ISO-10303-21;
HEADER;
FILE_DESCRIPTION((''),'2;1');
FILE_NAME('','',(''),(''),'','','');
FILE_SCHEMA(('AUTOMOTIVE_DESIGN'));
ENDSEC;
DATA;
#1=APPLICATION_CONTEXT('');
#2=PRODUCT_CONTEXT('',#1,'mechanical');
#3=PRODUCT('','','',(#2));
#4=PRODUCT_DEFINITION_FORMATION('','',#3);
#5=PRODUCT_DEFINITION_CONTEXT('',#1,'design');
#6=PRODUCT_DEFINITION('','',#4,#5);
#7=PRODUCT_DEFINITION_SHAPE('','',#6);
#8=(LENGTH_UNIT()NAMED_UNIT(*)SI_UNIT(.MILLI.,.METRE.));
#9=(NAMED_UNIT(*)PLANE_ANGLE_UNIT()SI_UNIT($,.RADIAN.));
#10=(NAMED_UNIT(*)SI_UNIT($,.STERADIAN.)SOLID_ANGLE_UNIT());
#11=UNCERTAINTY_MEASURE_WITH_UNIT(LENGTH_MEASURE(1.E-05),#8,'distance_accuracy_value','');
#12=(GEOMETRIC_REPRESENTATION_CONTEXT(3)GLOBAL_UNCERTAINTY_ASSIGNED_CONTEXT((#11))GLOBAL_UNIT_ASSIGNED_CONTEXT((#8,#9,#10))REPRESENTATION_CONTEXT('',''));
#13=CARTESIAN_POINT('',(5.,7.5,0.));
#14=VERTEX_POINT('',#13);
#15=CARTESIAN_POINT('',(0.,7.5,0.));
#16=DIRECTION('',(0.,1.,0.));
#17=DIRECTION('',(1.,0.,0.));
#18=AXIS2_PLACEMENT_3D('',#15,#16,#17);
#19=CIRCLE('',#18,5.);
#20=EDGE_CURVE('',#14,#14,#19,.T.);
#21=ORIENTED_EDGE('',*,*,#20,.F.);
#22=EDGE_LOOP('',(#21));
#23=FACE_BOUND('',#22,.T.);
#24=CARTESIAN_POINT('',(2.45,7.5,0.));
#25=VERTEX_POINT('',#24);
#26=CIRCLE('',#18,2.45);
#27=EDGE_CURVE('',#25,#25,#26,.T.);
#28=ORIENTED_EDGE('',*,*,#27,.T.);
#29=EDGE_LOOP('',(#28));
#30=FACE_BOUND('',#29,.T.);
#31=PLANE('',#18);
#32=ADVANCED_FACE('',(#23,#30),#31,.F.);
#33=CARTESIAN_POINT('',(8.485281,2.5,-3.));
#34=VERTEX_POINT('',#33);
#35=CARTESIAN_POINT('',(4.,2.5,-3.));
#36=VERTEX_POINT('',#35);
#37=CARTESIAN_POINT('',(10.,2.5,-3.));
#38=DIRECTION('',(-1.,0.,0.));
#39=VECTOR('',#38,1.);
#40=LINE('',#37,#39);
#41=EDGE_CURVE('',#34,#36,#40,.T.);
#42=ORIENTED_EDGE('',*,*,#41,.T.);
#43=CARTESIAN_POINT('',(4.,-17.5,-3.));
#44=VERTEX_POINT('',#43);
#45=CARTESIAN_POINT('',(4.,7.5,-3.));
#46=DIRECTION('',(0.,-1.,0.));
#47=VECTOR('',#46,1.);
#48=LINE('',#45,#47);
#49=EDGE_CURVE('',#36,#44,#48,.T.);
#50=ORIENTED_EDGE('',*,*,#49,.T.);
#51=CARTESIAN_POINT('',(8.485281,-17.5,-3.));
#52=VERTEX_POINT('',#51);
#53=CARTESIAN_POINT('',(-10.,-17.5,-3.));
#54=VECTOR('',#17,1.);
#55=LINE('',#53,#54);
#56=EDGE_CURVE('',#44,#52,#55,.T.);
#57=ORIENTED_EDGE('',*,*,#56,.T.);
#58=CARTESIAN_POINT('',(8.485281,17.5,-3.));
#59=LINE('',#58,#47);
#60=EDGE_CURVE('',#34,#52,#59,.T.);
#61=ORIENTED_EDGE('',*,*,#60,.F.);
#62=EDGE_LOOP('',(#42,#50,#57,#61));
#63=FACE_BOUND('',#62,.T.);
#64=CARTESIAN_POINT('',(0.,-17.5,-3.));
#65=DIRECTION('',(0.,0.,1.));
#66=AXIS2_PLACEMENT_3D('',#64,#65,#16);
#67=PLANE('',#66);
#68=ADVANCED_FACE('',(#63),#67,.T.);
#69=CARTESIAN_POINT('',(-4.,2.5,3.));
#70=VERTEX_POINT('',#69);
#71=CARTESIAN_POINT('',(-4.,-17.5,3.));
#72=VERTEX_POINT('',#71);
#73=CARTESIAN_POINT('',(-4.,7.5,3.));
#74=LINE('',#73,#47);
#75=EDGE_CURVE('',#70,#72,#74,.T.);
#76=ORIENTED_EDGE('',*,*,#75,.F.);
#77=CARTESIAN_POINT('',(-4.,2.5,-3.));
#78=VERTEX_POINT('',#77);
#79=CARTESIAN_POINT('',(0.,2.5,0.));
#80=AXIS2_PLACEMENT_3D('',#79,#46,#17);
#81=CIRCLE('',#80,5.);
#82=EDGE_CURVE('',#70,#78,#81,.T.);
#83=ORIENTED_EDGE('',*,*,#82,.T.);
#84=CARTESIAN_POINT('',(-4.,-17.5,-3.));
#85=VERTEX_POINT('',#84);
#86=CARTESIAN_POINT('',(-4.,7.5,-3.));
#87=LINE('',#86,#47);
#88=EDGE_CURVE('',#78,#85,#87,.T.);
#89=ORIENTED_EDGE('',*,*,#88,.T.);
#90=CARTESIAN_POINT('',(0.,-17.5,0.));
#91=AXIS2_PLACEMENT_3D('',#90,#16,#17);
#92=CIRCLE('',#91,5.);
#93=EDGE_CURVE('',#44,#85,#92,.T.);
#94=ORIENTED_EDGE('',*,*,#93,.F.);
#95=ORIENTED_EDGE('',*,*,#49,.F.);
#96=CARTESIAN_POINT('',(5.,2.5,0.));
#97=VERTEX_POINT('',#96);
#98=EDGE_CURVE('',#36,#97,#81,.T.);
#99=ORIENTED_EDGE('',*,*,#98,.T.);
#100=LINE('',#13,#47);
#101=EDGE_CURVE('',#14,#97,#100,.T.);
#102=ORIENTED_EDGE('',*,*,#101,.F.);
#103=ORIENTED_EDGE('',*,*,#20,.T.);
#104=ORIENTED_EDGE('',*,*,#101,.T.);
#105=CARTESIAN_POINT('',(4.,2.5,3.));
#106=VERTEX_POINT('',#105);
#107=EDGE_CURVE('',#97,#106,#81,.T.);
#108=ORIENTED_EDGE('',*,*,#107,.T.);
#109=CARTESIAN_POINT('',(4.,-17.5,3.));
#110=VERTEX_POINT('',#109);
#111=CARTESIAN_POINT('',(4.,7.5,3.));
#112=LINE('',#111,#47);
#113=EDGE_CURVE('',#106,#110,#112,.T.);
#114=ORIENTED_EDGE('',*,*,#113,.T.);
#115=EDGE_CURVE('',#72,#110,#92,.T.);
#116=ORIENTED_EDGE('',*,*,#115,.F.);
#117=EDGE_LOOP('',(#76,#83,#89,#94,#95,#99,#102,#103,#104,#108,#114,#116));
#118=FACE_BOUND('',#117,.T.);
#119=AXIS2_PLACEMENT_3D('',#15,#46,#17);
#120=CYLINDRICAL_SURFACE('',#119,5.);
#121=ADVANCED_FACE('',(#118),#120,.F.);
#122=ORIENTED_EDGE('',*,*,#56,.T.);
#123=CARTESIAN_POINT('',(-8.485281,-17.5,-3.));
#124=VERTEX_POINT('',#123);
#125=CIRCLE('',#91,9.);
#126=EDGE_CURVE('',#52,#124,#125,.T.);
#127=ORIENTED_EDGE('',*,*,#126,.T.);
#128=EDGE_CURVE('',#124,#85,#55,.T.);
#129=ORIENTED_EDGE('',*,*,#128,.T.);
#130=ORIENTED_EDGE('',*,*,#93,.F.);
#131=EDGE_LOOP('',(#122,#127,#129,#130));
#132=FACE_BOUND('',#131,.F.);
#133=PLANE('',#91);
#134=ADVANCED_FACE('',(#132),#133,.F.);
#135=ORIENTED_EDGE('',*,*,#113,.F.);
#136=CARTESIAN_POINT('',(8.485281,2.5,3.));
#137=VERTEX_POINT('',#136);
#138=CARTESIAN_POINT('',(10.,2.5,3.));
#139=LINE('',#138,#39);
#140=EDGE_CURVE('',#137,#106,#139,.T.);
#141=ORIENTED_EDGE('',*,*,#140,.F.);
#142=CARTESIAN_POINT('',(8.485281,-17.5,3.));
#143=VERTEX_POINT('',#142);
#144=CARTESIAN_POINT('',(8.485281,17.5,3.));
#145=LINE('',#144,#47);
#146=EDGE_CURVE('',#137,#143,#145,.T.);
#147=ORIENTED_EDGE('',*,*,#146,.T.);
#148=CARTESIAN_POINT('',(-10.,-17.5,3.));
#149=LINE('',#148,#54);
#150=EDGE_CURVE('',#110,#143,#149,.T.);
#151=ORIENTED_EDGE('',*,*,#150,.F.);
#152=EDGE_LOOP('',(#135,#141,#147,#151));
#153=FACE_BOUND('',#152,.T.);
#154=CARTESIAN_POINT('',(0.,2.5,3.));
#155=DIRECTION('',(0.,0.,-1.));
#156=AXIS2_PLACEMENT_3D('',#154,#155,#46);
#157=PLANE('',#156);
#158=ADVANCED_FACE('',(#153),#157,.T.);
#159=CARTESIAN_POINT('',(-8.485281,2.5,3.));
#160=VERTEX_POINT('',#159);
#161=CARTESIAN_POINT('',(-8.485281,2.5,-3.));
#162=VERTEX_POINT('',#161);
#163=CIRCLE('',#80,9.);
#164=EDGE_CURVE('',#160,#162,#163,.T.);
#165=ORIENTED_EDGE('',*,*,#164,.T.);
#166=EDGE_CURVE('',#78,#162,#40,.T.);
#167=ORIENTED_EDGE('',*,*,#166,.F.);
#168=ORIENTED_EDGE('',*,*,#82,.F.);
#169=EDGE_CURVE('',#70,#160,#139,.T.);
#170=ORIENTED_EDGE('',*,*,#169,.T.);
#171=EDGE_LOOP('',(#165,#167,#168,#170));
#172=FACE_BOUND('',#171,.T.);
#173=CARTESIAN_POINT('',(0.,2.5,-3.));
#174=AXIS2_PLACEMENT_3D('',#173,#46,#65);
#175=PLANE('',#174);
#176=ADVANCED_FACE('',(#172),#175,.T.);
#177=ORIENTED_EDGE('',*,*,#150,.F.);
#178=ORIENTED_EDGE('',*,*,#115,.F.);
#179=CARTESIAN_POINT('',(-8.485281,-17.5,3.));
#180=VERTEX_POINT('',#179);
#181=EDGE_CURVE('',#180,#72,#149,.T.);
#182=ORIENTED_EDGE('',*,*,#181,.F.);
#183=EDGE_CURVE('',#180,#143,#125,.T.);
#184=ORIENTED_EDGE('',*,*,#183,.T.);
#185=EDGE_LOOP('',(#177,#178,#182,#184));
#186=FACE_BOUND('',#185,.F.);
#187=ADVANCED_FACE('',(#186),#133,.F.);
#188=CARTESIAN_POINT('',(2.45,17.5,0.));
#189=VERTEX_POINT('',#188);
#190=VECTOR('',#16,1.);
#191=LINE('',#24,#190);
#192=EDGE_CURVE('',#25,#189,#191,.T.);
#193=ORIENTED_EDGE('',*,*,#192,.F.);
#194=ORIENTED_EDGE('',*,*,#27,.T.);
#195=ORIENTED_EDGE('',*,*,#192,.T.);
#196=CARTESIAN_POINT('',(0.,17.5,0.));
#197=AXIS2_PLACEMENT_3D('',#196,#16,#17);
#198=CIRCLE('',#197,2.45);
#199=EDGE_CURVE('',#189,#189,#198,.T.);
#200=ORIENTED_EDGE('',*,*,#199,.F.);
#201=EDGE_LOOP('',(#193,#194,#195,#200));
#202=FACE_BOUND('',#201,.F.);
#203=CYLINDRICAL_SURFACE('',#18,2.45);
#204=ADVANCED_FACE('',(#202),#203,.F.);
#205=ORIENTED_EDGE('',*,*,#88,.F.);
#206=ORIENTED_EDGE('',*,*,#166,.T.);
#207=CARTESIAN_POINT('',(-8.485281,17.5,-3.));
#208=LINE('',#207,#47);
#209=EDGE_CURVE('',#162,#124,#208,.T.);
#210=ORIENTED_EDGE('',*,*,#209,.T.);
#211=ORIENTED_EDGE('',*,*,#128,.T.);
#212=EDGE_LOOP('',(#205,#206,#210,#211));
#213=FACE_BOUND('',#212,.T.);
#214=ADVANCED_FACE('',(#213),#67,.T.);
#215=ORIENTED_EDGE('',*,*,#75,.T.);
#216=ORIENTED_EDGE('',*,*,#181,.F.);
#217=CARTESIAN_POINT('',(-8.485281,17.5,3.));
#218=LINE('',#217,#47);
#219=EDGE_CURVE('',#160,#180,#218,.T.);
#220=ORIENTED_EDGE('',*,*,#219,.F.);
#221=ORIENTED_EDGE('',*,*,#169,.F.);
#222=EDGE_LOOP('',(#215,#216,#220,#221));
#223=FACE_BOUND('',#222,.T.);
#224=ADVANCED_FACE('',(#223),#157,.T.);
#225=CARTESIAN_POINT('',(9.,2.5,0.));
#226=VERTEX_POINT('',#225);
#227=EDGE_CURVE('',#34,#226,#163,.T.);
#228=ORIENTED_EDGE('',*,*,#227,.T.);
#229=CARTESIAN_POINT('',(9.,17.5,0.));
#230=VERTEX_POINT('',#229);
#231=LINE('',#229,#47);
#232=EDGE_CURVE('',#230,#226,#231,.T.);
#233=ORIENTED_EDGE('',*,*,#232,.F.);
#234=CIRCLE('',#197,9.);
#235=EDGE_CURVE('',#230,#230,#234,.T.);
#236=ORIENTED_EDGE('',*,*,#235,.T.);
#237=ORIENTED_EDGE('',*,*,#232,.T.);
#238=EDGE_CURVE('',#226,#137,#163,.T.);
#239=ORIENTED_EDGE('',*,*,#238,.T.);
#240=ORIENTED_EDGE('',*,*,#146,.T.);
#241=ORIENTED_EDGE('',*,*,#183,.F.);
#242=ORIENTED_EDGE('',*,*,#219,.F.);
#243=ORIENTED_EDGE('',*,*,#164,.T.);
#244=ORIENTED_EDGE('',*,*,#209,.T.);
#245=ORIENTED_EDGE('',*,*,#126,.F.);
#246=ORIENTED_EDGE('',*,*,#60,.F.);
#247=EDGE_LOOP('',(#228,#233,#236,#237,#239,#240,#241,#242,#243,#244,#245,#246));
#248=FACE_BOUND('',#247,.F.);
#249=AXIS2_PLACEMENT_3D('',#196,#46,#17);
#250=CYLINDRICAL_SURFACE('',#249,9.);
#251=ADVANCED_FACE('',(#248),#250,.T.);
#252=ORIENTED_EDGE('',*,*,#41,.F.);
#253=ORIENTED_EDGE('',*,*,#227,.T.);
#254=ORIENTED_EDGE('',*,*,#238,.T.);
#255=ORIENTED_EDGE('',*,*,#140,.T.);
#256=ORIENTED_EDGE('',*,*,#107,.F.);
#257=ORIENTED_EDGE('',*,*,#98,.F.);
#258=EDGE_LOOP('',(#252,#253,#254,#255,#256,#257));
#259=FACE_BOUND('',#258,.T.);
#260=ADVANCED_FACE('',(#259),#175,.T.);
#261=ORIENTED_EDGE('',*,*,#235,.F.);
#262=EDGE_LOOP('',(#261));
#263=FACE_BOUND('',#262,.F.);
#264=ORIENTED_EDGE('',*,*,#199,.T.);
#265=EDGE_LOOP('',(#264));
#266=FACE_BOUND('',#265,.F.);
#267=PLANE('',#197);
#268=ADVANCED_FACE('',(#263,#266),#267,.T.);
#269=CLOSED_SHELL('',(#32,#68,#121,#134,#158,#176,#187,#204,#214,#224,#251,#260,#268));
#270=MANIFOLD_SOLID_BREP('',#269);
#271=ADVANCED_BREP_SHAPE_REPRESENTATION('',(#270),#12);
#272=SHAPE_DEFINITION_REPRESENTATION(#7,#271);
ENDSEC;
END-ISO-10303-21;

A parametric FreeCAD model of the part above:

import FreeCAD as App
import Part
import Sketcher
Q = App.Units.Quantity


def add_polygon(sketch, points):
    """Adds a closed chain of lines whose ends are joined by coincident constraints."""
    first, n = sketch.GeometryCount, len(points)
    for a, b in zip(points, points[1:] + points[:1]):
        sketch.addGeometry(Part.LineSegment(App.Vector(*a, 0), App.Vector(*b, 0)), False)
    for i in range(n):
        sketch.addConstraint(Sketcher.Constraint("Coincident", first + i, 2, first + (i + 1) % n, 1))

doc = App.newDocument("Part")
params = doc.addObject("Spreadsheet::Sheet", "Params")
for row, (alias, value) in enumerate([
    ("sketch1_height", "10 mm"),
    ("sketch1_height2", "35 mm"),
    ("revolution_angle", "360 deg"),
    ("sketch2_width", "20 mm"),
    ("sketch2_height", "6 mm"),
], start=1):
    params.set(f"A{row}", alias)
    params.set(f"B{row}", "=" + value)
    params.setAlias(f"B{row}", alias)

body = doc.addObject("PartDesign::Body", "Body")

sketch1 = body.newObject("Sketcher::SketchObject", "Sketch")
sketch1.AttachmentSupport = (doc.getObject("XY_Plane"), [""])
sketch1.MapMode = "FlatFace"
add_polygon(sketch1, [(9, 17.5), (2.5, 17.5), (2.5, 7.5), (5, 7.5), (5, -17.5), (9, -17.5)])
sketch1.addConstraint([
    Sketcher.Constraint("Horizontal", 0),
    Sketcher.Constraint("Vertical", 1),
    Sketcher.Constraint("Horizontal", 2),
    Sketcher.Constraint("Vertical", 3),
    Sketcher.Constraint("Horizontal", 4),
    Sketcher.Constraint("Vertical", 5),
    Sketcher.Constraint("DistanceY", 1, 2, 1, 1, Q("10 mm")),
    Sketcher.Constraint("DistanceY", 5, 1, 5, 2, Q("35 mm")),
    Sketcher.Constraint("DistanceX", -1, 1, 2, 2, Q("5 mm")),
    Sketcher.Constraint("DistanceX", -1, 1, 4, 2, Q("9 mm")),
    Sketcher.Constraint("DistanceY", -1, 1, 0, 2, Q("17.5 mm")),
    Sketcher.Constraint("DistanceX", -1, 1, 0, 2, Q("2.45 mm")),
])
sketch1.setExpression("Constraints[12]", "Params.sketch1_height")
sketch1.setExpression("Constraints[13]", "Params.sketch1_height2")
revolution = body.newObject("PartDesign::Revolution", "Revolution")
revolution.Profile = sketch1
revolution.ReferenceAxis = (sketch1, ["V_Axis"])
revolution.setExpression("Angle", "Params.revolution_angle")

sketch2 = body.newObject("Sketcher::SketchObject", "Sketch001")
sketch2.AttachmentSupport = (doc.getObject("YZ_Plane"), [""])
sketch2.MapMode = "FlatFace"
add_polygon(sketch2, [(2, 3), (-18, 3), (-18, -3), (2, -3)])
sketch2.addConstraint([
    Sketcher.Constraint("Horizontal", 0),
    Sketcher.Constraint("Vertical", 1),
    Sketcher.Constraint("Horizontal", 2),
    Sketcher.Constraint("Vertical", 3),
    Sketcher.Constraint("DistanceX", 0, 2, 0, 1, Q("20 mm")),
    Sketcher.Constraint("DistanceY", 1, 2, 1, 1, Q("6 mm")),
    Sketcher.Constraint("DistanceY", -1, 1, 0, 2, Q("3 mm")),
    Sketcher.Constraint("DistanceX", 0, 2, -1, 1, Q("17.5 mm")),
])
sketch2.setExpression("Constraints[8]", "Params.sketch2_width")
sketch2.setExpression("Constraints[9]", "Params.sketch2_height")
pocket1 = body.newObject("PartDesign::Pocket", "Pocket")
pocket1.Profile = sketch2
pocket1.Type = "ThroughAll"
pocket1.Midplane = True

doc.recompute()
